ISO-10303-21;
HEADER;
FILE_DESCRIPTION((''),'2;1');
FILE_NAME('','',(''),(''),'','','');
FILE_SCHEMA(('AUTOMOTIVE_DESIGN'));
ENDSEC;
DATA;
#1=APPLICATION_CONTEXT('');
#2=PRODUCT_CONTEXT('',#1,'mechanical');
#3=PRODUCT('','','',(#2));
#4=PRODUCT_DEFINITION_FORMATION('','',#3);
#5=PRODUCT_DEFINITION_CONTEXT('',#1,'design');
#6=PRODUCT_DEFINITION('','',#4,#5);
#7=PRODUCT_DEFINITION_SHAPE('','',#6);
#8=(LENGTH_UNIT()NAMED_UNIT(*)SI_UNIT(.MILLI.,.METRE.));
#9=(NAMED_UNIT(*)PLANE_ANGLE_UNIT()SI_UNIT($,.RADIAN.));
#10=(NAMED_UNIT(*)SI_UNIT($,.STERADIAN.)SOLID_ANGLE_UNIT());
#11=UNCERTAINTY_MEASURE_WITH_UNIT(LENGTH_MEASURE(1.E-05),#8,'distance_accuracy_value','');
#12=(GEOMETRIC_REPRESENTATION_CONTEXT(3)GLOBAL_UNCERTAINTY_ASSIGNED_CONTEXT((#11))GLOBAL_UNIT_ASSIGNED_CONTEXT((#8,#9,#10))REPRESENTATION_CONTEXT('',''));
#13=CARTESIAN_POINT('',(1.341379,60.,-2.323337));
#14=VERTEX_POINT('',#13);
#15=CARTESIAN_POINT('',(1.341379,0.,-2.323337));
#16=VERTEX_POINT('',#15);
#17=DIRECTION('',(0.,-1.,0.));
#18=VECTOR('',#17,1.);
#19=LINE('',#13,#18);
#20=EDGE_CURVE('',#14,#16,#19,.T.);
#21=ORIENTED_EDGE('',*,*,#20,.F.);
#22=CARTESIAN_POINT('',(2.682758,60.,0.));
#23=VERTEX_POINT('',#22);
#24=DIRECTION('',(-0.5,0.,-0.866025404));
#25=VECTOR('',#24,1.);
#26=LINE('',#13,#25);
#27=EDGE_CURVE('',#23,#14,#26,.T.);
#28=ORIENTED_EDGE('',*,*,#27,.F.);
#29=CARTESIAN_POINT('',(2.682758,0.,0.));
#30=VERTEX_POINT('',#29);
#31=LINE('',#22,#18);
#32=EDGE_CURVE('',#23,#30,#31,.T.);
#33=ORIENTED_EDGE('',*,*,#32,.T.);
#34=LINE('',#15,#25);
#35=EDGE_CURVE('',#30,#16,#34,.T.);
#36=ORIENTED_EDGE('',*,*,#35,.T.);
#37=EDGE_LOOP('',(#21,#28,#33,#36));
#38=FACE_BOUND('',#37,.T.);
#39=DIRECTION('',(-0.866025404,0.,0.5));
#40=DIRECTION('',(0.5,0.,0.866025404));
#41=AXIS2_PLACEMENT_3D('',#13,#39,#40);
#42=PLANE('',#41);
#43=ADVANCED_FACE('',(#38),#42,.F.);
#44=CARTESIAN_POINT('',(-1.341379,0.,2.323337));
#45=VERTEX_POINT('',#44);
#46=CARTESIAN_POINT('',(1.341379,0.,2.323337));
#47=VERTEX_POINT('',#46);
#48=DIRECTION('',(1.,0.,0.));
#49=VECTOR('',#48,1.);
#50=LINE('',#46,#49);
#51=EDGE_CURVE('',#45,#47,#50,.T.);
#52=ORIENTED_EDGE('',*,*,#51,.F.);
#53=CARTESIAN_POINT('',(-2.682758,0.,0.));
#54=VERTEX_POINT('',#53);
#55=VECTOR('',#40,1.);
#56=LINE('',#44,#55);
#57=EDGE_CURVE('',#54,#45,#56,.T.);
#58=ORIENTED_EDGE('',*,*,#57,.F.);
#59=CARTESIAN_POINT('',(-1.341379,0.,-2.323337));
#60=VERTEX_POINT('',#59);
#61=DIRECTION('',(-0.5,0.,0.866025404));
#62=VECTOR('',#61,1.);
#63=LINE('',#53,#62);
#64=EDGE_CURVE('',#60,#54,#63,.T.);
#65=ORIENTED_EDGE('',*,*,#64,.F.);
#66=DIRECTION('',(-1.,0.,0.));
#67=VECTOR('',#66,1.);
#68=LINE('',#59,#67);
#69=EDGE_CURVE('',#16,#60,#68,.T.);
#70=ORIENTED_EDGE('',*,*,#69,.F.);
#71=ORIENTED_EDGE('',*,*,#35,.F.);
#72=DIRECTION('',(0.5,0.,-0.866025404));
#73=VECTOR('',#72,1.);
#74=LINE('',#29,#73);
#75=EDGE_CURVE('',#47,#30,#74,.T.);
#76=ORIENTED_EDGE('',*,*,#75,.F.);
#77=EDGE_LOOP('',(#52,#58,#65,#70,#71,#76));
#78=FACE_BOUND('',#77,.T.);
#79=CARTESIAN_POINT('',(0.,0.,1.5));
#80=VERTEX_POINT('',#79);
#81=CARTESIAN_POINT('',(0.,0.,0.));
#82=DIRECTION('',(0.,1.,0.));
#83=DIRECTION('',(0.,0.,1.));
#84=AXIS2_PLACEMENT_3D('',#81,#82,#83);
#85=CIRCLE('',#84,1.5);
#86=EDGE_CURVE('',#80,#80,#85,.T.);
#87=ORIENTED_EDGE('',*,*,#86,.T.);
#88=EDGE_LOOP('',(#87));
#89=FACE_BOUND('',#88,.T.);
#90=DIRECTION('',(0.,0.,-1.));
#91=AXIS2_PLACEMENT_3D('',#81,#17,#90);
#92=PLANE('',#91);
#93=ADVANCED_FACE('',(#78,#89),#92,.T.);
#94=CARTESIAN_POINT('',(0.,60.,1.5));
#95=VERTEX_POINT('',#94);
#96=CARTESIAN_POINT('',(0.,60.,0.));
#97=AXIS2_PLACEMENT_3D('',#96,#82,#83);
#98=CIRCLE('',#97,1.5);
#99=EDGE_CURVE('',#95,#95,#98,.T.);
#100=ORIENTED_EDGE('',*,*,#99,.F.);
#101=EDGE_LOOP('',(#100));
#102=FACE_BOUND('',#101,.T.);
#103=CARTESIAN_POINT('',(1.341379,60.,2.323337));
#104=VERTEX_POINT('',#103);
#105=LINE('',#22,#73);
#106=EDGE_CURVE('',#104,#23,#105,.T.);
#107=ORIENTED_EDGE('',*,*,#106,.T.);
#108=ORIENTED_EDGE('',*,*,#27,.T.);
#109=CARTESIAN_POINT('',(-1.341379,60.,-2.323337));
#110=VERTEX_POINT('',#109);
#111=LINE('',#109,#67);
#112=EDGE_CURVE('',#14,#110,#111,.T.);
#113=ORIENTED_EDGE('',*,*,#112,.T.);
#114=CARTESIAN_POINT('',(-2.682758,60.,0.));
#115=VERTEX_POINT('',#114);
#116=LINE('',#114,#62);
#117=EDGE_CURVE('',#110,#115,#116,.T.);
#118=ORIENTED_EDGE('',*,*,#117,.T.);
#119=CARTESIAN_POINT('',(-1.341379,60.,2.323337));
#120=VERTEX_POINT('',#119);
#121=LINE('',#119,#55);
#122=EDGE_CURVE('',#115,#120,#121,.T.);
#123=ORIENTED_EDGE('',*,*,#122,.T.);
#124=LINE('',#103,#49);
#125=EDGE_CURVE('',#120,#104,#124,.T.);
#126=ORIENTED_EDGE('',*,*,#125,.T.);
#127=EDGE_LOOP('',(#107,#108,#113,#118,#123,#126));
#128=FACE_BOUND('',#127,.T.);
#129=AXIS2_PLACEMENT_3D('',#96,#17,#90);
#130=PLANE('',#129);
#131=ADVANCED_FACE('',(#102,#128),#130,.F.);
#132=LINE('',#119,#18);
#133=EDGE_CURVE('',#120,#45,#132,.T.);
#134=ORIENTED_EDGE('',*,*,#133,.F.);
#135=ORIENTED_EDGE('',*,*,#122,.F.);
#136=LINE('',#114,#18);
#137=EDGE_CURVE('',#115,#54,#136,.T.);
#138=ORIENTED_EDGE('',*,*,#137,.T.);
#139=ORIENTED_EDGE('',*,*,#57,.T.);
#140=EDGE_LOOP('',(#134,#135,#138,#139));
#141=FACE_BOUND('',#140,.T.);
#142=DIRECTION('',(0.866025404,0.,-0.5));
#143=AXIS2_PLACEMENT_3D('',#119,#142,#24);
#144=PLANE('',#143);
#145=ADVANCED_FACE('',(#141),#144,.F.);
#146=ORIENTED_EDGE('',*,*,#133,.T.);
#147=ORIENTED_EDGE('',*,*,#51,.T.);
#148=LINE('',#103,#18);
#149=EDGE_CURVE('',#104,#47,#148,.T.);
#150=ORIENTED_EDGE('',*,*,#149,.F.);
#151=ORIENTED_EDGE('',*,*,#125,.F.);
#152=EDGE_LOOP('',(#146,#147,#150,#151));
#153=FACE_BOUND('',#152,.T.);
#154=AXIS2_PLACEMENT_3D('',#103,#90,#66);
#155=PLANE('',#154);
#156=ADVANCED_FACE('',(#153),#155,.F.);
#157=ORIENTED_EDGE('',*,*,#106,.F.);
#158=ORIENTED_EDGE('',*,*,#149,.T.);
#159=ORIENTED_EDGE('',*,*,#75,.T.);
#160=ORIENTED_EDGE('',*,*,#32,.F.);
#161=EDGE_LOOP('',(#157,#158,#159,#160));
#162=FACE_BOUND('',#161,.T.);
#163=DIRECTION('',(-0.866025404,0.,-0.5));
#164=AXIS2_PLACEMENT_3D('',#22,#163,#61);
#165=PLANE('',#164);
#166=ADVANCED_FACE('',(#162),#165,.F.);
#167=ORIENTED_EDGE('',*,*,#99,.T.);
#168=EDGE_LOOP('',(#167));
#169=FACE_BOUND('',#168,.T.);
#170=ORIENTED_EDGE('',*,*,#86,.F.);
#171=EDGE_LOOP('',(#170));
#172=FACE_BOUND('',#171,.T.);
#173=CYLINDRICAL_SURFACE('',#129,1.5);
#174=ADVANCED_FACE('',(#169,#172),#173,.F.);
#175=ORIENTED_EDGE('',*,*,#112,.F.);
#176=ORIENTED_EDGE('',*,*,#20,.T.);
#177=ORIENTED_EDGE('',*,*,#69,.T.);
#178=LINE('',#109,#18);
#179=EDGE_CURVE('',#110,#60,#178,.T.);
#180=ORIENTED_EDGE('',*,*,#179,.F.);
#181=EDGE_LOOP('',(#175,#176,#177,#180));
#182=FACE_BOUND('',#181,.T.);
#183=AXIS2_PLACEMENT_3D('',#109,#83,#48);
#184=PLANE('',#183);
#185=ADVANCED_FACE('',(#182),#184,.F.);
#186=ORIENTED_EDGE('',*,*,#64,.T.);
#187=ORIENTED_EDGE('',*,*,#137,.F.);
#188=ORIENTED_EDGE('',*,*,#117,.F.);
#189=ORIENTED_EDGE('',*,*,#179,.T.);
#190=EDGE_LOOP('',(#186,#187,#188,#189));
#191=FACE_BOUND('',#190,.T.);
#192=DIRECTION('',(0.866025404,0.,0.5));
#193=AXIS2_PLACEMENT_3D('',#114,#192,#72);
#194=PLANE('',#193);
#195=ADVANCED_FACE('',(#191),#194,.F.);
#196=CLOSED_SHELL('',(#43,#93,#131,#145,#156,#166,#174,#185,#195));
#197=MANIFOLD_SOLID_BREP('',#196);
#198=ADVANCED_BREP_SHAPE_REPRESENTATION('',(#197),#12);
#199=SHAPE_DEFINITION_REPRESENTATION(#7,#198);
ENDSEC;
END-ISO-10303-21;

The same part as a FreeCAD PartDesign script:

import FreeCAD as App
import Part
import Sketcher
Q = App.Units.Quantity


def add_polygon(sketch, points):
    """Adds a closed chain of lines whose ends are joined by coincident constraints."""
    first, n = sketch.GeometryCount, len(points)
    for a, b in zip(points, points[1:] + points[:1]):
        sketch.addGeometry(Part.LineSegment(App.Vector(*a, 0), App.Vector(*b, 0)), False)
    for i in range(n):
        sketch.addConstraint(Sketcher.Constraint("Coincident", first + i, 2, first + (i + 1) % n, 1))

doc = App.newDocument("Part")
params = doc.addObject("Spreadsheet::Sheet", "Params")
for row, (alias, value) in enumerate([
    ("sketch1_diameter", "3 mm"),
    ("pad1_length", "60 mm"),
], start=1):
    params.set(f"A{row}", alias)
    params.set(f"B{row}", "=" + value)
    params.setAlias(f"B{row}", alias)

body = doc.addObject("PartDesign::Body", "Body")

# Sketch on XZ plane
sketch1 = doc.addObject("Sketcher::SketchObject", "Sketch")
body.addObject(sketch1)
sketch1.AttachmentSupport = (doc.XZ_Plane, [""])
sketch1.MapMode = "FlatFace"
add_polygon(sketch1, [(2.682758, 0), (1.341379, -2.323337), (-1.341379, -2.323337), (-2.682758, 0), (-1.341379, 2.323337), (1.341379, 2.323337)])  # lines 0-5
sketch1.addGeometry(Part.Circle(App.Vector(0, 0, 0), App.Vector(0, 0, 1), 1.5), False)  # 6
sketch1.addConstraint([
    Sketcher.Constraint("Horizontal", 1),
    Sketcher.Constraint("Horizontal", 4),
    Sketcher.Constraint("Coincident", 6, 3, -1, 1),
    Sketcher.Constraint("Symmetric", 0, 2, 3, 2, -1, 1),
    Sketcher.Constraint("Symmetric", 2, 2, 5, 2, -1, 1),
    Sketcher.Constraint("PointOnObject", 2, 2, -1),
    Sketcher.Constraint("Parallel", 2, 5),
    Sketcher.Constraint("Vertical", 1, 2, 3, 2),
    Sketcher.Constraint("Diameter", 6, Q("3 mm")),
    Sketcher.Constraint("Angle", 0, Q("-120 deg")),
    Sketcher.Constraint("DistanceX", 1, 2, 1, 1, Q("2.682758 mm")),
    Sketcher.Constraint("DistanceX", 2, 2, 1, 2, Q("1.341379 mm")),
])
sketch1.setExpression("Constraints[14]", "Params.sketch1_diameter")
pad1 = doc.addObject("PartDesign::Pad", "Pad")
body.addObject(pad1)
pad1.Profile = sketch1
pad1.setExpression("Length", "Params.pad1_length")
pad1.Reversed = True

doc.recompute()
